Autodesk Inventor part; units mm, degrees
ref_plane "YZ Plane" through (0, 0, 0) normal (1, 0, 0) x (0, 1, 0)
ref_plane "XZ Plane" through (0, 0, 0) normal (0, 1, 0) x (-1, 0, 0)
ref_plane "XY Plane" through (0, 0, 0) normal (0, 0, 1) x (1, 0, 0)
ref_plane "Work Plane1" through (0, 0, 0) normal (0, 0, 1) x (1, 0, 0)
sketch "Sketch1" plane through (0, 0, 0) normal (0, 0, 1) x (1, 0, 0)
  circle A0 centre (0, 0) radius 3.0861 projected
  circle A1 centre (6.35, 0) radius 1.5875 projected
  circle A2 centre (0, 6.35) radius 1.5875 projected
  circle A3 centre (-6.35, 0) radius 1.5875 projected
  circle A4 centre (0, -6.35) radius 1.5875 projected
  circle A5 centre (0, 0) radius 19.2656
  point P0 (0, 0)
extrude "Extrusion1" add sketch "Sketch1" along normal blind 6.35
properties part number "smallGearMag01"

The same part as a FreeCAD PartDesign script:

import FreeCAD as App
import Part
import Sketcher
Q = App.Units.Quantity

doc = App.newDocument("Part")
body = doc.addObject("PartDesign::Body", "Body")

# Sketch on XY plane
sketch1 = doc.addObject("Sketcher::SketchObject", "Sketch")
body.addObject(sketch1)
sketch1.AttachmentSupport = (doc.XY_Plane, [""])
sketch1.MapMode = "FlatFace"
sketch1.addGeometry([
    Part.Circle(App.Vector(0, 0, 0), App.Vector(0, 0, 1), 19.3),  # 0
    Part.Circle(App.Vector(0, -6.3, 0), App.Vector(0, 0, 1), 1.6),  # 1
    Part.Circle(App.Vector(-6.3, 0, 0), App.Vector(0, 0, 1), 1.6),  # 2
    Part.Circle(App.Vector(0, 0, 0), App.Vector(0, 0, 1), 3.1),  # 3
    Part.Circle(App.Vector(6.3, 0, 0), App.Vector(0, 0, 1), 1.6),  # 4
    Part.Circle(App.Vector(0, 6.3, 0), App.Vector(0, 0, 1), 1.6),  # 5
], False)
sketch1.addConstraint([
    Sketcher.Constraint("Coincident", 0, 3, -1, 1),
    Sketcher.Constraint("Coincident", 3, 3, -1, 1),
    Sketcher.Constraint("Equal", 1, 2),
    Sketcher.Constraint("Equal", 2, 4),
    Sketcher.Constraint("Equal", 4, 5),
    Sketcher.Constraint("Symmetric", 2, 3, 4, 3, -1, 1),
    Sketcher.Constraint("Symmetric", 1, 3, 5, 3, -1, 1),
    Sketcher.Constraint("PointOnObject", 1, 3, -2),
    Sketcher.Constraint("PointOnObject", 2, 3, -1),
    Sketcher.Constraint("Diameter", 1, Q("0.125 in")),
    Sketcher.Constraint("Diameter", 3, Q("0.243 in")),
    Sketcher.Constraint("DistanceX", 2, 3, 4, 3, Q("0.5 in")),
    Sketcher.Constraint("DistanceY", 1, 3, 5, 3, Q("0.5 in")),
    Sketcher.Constraint("Diameter", 0, 38.5312),
])
pad1 = doc.addObject("PartDesign::Pad", "Pad")
body.addObject(pad1)
pad1.Profile = sketch1
pad1.Length = Q("0.25 in")

doc.recompute()
